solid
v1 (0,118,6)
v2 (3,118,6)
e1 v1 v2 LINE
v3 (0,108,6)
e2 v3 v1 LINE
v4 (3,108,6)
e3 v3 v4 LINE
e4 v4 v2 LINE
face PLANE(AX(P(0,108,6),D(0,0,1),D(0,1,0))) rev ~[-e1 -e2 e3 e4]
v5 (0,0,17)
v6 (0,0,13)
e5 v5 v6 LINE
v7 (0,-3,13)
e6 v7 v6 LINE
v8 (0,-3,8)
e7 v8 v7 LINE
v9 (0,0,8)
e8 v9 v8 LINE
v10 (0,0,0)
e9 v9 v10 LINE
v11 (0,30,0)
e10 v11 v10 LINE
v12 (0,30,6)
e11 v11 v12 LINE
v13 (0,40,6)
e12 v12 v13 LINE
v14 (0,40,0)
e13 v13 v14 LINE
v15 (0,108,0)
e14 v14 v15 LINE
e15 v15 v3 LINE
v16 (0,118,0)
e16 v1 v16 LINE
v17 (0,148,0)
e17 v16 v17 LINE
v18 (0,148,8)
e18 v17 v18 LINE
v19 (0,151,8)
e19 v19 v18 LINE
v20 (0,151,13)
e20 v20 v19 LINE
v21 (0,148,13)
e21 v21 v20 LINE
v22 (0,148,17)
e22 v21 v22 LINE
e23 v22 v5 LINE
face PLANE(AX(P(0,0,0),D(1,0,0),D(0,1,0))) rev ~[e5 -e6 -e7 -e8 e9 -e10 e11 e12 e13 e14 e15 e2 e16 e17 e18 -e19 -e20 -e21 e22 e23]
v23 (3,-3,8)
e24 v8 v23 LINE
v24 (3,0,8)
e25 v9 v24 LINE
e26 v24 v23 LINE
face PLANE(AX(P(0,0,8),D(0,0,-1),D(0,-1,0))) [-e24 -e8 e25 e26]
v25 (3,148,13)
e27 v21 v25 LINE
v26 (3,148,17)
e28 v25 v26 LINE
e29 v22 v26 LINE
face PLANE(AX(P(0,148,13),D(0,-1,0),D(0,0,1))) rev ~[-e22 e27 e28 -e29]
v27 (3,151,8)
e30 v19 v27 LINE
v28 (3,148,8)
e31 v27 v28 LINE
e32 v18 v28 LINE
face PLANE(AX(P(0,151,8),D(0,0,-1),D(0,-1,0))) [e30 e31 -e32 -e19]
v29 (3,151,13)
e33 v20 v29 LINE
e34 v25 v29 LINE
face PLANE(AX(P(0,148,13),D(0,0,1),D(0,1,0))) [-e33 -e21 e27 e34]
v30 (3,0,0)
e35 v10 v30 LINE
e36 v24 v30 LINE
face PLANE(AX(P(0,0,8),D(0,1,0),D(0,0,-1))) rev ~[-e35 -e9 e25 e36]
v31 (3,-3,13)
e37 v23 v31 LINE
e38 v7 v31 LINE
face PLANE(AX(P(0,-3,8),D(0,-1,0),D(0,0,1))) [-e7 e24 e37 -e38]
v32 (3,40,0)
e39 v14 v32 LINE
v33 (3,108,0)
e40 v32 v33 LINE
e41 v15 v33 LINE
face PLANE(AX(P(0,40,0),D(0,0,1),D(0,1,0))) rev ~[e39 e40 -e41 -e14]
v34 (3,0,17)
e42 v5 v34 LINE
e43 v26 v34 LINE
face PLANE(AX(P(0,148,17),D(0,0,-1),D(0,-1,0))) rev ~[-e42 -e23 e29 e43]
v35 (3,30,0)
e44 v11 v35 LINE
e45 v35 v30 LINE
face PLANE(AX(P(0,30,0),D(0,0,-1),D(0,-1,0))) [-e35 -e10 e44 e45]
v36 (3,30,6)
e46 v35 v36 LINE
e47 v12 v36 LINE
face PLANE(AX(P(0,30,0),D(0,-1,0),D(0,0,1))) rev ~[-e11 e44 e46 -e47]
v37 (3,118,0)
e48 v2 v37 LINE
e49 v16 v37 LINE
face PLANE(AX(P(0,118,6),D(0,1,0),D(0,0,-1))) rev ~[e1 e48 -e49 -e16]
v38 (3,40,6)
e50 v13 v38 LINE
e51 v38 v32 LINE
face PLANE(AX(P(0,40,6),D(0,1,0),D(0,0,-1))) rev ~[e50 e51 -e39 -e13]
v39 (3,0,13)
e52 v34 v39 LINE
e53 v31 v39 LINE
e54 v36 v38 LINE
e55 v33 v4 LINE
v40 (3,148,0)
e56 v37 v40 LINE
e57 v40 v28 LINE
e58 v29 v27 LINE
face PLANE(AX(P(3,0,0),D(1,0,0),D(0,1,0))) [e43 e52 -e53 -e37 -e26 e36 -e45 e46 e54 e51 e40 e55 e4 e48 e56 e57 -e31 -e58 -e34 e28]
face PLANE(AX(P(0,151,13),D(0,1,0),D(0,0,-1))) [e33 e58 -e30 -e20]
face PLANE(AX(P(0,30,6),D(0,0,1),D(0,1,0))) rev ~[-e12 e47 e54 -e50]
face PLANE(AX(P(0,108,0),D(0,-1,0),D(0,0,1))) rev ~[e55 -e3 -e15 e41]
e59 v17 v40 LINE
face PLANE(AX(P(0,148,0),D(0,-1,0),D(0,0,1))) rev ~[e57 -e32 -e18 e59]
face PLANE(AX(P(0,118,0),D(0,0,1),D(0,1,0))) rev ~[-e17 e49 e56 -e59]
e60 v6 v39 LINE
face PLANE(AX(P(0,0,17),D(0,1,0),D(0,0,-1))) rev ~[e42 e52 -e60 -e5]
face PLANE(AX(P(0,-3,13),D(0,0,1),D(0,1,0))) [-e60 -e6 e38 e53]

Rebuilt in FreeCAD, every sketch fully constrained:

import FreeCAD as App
import Part
import Sketcher
from FreeCAD import Vector
Q = App.Units.Quantity


def add_polygon(sketch, points):
    """Adds a closed chain of lines whose ends are joined by coincident constraints."""
    first, n = sketch.GeometryCount, len(points)
    for a, b in zip(points, points[1:] + points[:1]):
        sketch.addGeometry(Part.LineSegment(App.Vector(*a, 0), App.Vector(*b, 0)), False)
    for i in range(n):
        sketch.addConstraint(Sketcher.Constraint("Coincident", first + i, 2, first + (i + 1) % n, 1))

doc = App.newDocument("Part")
body = doc.addObject("PartDesign::Body", "Body")

sketch1 = body.newObject("Sketcher::SketchObject", "Sketch")
sketch1.AttachmentSupport = (doc.getObject("YZ_Plane"), [""])
sketch1.MapMode = "FlatFace"
add_polygon(sketch1, [(-3, 8), (0, 8), (0, 0), (30, 0), (30, 6), (40, 6), (40, 0), (108, 0), (108, 6), (118, 6), (118, 0), (148, 0), (148, 8), (151, 8), (151, 13), (148, 13), (148, 17), (0, 17), (0, 13), (-3, 13)])
sketch1.addConstraint([
    Sketcher.Constraint("Horizontal", 0),
    Sketcher.Constraint("Vertical", 1),
    Sketcher.Constraint("Horizontal", 2),
    Sketcher.Constraint("Vertical", 3),
    Sketcher.Constraint("Horizontal", 4),
    Sketcher.Constraint("Vertical", 5),
    Sketcher.Constraint("Horizontal", 6),
    Sketcher.Constraint("Vertical", 7),
    Sketcher.Constraint("Horizontal", 8),
    Sketcher.Constraint("Vertical", 9),
    Sketcher.Constraint("Horizontal", 10),
    Sketcher.Constraint("Vertical", 11),
    Sketcher.Constraint("Horizontal", 12),
    Sketcher.Constraint("Vertical", 13),
    Sketcher.Constraint("Horizontal", 14),
    Sketcher.Constraint("Vertical", 15),
    Sketcher.Constraint("Horizontal", 16),
    Sketcher.Constraint("Vertical", 17),
    Sketcher.Constraint("Horizontal", 18),
    Sketcher.Constraint("Vertical", 19),
    Sketcher.Constraint("Coincident", 1, 2, -1, 1),
    Sketcher.Constraint("PointOnObject", 5, 2, -1),
    Sketcher.Constraint("PointOnObject", 9, 2, -1),
    Sketcher.Constraint("PointOnObject", 16, 2, -2),
    Sketcher.Constraint("Horizontal", 4, 2, 7, 2),
    Sketcher.Constraint("Horizontal", 0, 2, 11, 2),
    Sketcher.Constraint("Horizontal", 14, 2, 17, 2),
    Sketcher.Constraint("Vertical", 11, 2, 14, 2),
    Sketcher.Constraint("Equal", 4, 8),
    Sketcher.Constraint("Equal", 2, 10),
    Sketcher.Constraint("Equal", 0, 12),
    Sketcher.Constraint("DistanceX", 0, 1, 0, 2, Q("3 mm")),
    Sketcher.Constraint("DistanceX", 2, 1, 2, 2, Q("30 mm")),
    Sketcher.Constraint("DistanceX", 4, 1, 4, 2, Q("10 mm")),
    Sketcher.Constraint("DistanceX", 16, 2, 16, 1, Q("148 mm")),
    Sketcher.Constraint("DistanceY", 1, 2, 1, 1, Q("8 mm")),
    Sketcher.Constraint("DistanceY", 3, 1, 3, 2, Q("6 mm")),
    Sketcher.Constraint("DistanceY", 13, 1, 13, 2, Q("5 mm")),
    Sketcher.Constraint("DistanceY", -1, 1, 15, 2, Q("17 mm")),
])
pad1 = body.newObject("PartDesign::Pad", "Pad")
pad1.Profile = sketch1
pad1.Length = 3

doc.recompute()
